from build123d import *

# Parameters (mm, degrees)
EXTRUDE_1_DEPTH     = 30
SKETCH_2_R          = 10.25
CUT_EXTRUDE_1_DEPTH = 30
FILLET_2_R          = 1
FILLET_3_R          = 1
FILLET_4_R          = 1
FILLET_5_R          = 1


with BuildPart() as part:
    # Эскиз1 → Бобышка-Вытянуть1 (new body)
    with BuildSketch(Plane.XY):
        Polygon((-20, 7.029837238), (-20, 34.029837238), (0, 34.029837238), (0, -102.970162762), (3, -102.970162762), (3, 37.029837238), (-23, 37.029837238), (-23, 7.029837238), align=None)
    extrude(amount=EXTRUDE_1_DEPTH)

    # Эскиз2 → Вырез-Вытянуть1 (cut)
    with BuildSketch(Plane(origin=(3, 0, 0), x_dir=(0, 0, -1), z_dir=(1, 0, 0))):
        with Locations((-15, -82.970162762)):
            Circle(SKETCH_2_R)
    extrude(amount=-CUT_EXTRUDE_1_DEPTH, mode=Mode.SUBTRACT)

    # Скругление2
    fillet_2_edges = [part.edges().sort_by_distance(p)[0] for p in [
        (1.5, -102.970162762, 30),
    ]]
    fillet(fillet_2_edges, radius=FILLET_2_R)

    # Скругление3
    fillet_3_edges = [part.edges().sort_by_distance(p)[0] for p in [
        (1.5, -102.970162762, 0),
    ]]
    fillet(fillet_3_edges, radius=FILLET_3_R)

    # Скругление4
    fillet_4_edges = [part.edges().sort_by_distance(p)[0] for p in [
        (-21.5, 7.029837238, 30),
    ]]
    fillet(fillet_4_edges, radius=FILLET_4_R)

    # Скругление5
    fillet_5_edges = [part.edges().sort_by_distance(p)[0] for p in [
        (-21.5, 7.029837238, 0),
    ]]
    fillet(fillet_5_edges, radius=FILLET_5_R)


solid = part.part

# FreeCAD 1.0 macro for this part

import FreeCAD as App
import Part
import Sketcher


def edges_at(feature, points):
    """Names of the edges that pass closest to the given points."""
    edges = feature.Shape.Edges
    near = lambda p: min(range(len(edges)), key=lambda i: edges[i].distToShape(Part.Vertex(*p))[0])
    return sorted({f"Edge{near(p) + 1}" for p in points})

doc = App.newDocument("Part")
body = doc.addObject("PartDesign::Body", "Body")

sketch1 = body.newObject("Sketcher::SketchObject", "Sketch")
sketch1.AttachmentSupport = (doc.getObject("XY_Plane"), [""])
sketch1.MapMode = "FlatFace"
sketch1.addGeometry([
    Part.LineSegment(App.Vector(-20, 7, 0), App.Vector(-20, 34, 0)),
    Part.LineSegment(App.Vector(-20, 34, 0), App.Vector(0, 34, 0)),
    Part.LineSegment(App.Vector(0, 34, 0), App.Vector(0, -103, 0)),
    Part.LineSegment(App.Vector(0, -103, 0), App.Vector(3, -103, 0)),
    Part.LineSegment(App.Vector(3, -103, 0), App.Vector(3, 37, 0)),
    Part.LineSegment(App.Vector(3, 37, 0), App.Vector(-23, 37, 0)),
    Part.LineSegment(App.Vector(-23, 37, 0), App.Vector(-23, 7, 0)),
    Part.LineSegment(App.Vector(-23, 7, 0), App.Vector(-20, 7, 0)),
], False)
sketch1.addConstraint([
    Sketcher.Constraint("Coincident", 0, 2, 1, 1),
    Sketcher.Constraint("Coincident", 1, 2, 2, 1),
    Sketcher.Constraint("Coincident", 2, 2, 3, 1),
    Sketcher.Constraint("Coincident", 3, 2, 4, 1),
    Sketcher.Constraint("Coincident", 4, 2, 5, 1),
    Sketcher.Constraint("Coincident", 5, 2, 6, 1),
    Sketcher.Constraint("Coincident", 6, 2, 7, 1),
    Sketcher.Constraint("Coincident", 7, 2, 0, 1),
    Sketcher.Constraint("Vertical", 0),
    Sketcher.Constraint("Horizontal", 1),
    Sketcher.Constraint("Vertical", 2),
    Sketcher.Constraint("Horizontal", 3),
    Sketcher.Constraint("Vertical", 4),
    Sketcher.Constraint("Horizontal", 5),
    Sketcher.Constraint("Vertical", 6),
    Sketcher.Constraint("Horizontal", 7),
    Sketcher.Constraint("PointOnObject", 1, 2, -2),
    Sketcher.Constraint("Equal", 3, 7),
    Sketcher.Constraint("DistanceX", 1, 1, 1, 2, 20.0),
    Sketcher.Constraint("DistanceX", 3, 1, 3, 2, 3.0),
    Sketcher.Constraint("DistanceY", 0, 1, 0, 2, 27.0),
    Sketcher.Constraint("DistanceY", 2, 2, 2, 1, 137.0),
    Sketcher.Constraint("DistanceY", 4, 1, 4, 2, 140.0),
    Sketcher.Constraint("DistanceY", -1, 1, 0, 2, 34.029837),
])
pad1 = body.newObject("PartDesign::Pad", "Pad")
pad1.Profile = sketch1
pad1.Length = 30

sketch2 = body.newObject("Sketcher::SketchObject", "Sketch001")
sketch2.AttachmentSupport = (doc.getObject("YZ_Plane"), [""])
sketch2.MapMode = "FlatFace"
sketch2.AttachmentOffset = App.Placement(App.Vector(0, 0, 3), App.Rotation())
sketch2.addGeometry(Part.Circle(App.Vector(-83, 15, 0), App.Vector(0, 0, 1), 10), False)
sketch2.addConstraint([
    Sketcher.Constraint("Diameter", 0, 20.5),
    Sketcher.Constraint("DistanceY", -1, 1, 0, 3, 15.0),
    Sketcher.Constraint("DistanceX", 0, 3, -1, 1, 82.970163),
])
pocket1 = body.newObject("PartDesign::Pocket", "Pocket")
pocket1.Profile = sketch2
pocket1.Length = 30
doc.recompute()

fillet = body.newObject("PartDesign::Fillet", "Fillet")
fillet.Base = (pocket1, edges_at(pocket1, [(1.5, -102.97, 30)]))
fillet.Radius = 1
doc.recompute()

fillet2 = body.newObject("PartDesign::Fillet", "Fillet001")
fillet2.Base = (fillet, edges_at(fillet, [(1.5, -102.97, 0)]))
fillet2.Radius = 1
doc.recompute()

fillet3 = body.newObject("PartDesign::Fillet", "Fillet002")
fillet3.Base = (fillet2, edges_at(fillet2, [(-21.5, 7.03, 30)]))
fillet3.Radius = 1
doc.recompute()

fillet4 = body.newObject("PartDesign::Fillet", "Fillet003")
fillet4.Base = (fillet3, edges_at(fillet3, [(-21.5, 7.03, 0)]))
fillet4.Radius = 1

doc.recompute()
